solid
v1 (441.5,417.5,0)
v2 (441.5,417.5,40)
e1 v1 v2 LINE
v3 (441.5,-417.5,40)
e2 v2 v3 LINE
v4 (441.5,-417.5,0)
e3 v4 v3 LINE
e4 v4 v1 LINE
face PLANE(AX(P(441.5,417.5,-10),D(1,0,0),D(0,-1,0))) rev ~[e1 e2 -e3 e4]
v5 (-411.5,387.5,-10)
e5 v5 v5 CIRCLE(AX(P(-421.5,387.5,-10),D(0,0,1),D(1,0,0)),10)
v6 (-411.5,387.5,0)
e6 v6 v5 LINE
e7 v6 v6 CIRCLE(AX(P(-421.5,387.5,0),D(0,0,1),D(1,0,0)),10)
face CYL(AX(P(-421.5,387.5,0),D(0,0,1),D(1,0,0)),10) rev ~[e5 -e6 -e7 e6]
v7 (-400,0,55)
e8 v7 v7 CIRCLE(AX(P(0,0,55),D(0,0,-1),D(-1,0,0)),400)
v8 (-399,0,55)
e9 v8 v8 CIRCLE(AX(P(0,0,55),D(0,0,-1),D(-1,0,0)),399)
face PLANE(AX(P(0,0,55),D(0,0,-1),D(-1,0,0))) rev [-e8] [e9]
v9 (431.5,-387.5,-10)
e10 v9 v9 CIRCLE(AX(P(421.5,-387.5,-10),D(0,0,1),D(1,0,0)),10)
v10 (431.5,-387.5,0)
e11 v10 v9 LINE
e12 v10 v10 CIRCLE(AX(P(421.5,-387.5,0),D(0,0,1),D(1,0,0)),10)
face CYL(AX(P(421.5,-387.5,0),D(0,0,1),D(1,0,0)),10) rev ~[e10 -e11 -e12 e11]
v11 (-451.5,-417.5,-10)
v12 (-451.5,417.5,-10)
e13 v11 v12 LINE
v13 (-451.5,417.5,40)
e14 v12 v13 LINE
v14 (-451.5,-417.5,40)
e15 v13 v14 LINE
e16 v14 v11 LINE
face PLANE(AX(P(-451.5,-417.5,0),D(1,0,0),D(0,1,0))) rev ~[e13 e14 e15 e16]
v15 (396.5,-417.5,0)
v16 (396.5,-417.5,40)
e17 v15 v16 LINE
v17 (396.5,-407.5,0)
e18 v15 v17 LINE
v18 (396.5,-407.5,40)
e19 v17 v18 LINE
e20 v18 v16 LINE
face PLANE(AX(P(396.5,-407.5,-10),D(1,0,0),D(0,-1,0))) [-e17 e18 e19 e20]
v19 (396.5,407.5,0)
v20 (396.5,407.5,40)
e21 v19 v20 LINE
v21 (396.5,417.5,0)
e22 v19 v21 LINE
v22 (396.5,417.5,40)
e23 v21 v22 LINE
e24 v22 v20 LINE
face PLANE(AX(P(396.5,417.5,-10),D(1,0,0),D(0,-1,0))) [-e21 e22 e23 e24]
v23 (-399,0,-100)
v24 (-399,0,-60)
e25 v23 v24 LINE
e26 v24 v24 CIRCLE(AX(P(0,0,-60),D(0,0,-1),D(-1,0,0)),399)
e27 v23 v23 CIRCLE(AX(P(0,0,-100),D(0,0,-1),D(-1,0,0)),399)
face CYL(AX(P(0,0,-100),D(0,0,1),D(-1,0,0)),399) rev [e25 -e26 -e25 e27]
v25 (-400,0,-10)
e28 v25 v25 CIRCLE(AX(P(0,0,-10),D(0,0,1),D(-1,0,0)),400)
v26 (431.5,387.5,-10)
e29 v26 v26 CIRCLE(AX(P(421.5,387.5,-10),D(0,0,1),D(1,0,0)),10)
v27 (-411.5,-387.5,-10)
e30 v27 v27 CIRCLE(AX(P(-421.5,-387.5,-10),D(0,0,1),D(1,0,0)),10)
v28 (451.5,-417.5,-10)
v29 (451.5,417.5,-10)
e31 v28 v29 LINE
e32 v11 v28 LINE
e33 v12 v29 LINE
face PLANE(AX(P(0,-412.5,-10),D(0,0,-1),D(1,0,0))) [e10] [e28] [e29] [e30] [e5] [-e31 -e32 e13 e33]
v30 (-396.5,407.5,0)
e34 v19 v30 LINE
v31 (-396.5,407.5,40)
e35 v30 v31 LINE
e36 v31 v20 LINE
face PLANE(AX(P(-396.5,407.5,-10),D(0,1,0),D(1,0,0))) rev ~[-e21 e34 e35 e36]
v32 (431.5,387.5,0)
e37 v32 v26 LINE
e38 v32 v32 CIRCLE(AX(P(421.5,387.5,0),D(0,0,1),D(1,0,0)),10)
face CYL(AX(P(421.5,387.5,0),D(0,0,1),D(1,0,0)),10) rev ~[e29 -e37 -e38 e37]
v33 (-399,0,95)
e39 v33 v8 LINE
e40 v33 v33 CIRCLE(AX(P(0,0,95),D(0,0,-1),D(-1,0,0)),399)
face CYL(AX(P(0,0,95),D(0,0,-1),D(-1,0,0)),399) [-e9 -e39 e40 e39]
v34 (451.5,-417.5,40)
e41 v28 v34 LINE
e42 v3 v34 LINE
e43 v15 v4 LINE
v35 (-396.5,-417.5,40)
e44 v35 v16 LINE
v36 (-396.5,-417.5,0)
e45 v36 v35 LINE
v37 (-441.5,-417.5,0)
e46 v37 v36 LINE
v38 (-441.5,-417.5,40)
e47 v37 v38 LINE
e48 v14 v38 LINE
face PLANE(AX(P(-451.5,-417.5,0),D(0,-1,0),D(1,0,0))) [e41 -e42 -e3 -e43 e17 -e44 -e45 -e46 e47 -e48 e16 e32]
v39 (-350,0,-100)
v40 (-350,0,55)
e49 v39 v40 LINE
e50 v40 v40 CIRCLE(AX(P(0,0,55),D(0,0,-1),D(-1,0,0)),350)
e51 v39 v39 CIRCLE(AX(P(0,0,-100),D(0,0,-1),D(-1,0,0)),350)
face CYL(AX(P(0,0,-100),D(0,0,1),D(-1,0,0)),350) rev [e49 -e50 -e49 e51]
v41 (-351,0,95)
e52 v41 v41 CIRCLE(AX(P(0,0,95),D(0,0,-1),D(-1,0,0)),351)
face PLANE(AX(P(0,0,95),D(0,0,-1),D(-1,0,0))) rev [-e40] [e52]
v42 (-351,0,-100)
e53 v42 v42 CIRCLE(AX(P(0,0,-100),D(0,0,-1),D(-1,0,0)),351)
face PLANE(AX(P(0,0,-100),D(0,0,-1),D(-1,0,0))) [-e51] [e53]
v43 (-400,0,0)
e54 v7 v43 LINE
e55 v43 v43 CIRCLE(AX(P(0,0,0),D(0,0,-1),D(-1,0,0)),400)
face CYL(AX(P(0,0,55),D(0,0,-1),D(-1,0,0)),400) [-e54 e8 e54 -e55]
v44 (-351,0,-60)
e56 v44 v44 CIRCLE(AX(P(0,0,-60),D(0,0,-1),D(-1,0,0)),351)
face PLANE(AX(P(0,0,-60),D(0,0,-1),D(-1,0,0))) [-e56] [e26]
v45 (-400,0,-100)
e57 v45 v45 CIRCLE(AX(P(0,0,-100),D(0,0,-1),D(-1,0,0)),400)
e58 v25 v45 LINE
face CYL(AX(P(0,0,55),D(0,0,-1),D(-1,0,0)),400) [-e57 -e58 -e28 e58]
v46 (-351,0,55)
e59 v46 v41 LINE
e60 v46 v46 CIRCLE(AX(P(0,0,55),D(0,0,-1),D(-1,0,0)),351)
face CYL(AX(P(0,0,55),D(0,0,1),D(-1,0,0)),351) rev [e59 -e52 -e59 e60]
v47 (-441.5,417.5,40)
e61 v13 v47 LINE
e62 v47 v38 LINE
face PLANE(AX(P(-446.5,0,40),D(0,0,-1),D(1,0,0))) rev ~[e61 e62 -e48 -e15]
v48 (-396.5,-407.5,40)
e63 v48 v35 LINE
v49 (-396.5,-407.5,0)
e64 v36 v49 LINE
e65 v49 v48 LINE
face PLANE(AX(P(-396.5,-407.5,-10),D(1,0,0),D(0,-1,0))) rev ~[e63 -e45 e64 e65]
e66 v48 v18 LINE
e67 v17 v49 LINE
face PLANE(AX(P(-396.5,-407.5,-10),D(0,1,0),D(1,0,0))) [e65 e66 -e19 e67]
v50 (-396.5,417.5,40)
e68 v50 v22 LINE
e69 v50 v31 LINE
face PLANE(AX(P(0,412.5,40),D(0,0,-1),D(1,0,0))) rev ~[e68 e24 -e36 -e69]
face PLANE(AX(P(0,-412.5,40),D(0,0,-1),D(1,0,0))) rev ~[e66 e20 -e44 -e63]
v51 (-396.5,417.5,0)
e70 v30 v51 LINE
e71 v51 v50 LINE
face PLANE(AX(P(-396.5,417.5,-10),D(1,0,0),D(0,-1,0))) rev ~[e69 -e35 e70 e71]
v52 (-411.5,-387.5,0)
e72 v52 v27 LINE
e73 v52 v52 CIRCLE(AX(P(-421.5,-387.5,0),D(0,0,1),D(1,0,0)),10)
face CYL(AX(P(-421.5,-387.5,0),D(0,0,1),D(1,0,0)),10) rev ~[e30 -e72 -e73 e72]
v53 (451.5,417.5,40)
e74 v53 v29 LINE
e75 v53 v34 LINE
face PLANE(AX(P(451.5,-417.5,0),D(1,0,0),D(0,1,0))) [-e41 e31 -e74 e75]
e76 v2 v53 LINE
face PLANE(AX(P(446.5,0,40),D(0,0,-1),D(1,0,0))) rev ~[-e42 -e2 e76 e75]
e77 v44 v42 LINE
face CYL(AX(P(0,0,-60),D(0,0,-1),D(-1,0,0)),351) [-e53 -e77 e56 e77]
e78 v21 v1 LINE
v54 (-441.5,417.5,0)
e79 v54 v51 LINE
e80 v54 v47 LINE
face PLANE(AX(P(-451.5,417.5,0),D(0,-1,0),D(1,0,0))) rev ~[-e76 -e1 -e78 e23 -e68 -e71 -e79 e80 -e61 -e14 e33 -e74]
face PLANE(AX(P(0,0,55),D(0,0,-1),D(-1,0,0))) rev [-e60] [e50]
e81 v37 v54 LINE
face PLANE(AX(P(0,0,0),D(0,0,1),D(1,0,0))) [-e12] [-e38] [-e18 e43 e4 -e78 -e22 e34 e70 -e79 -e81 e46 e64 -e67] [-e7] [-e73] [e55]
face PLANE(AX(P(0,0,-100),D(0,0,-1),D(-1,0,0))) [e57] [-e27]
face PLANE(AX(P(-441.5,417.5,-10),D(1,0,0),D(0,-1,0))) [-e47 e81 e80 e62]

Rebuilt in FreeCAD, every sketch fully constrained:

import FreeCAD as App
import Part
import Sketcher

V = App.Vector


def add_polygon(sketch, points):
    """Adds a closed chain of lines whose ends are joined by coincident constraints."""
    first, n = sketch.GeometryCount, len(points)
    for a, b in zip(points, points[1:] + points[:1]):
        sketch.addGeometry(Part.LineSegment(App.Vector(*a, 0), App.Vector(*b, 0)), False)
    for i in range(n):
        sketch.addConstraint(Sketcher.Constraint("Coincident", first + i, 2, first + (i + 1) % n, 1))

doc = App.newDocument("Part")
body = doc.addObject("PartDesign::Body", "Body")

# Sketch on XZ plane
sketch1 = body.newObject("Sketcher::SketchObject", "Sketch")
sketch1.AttachmentSupport = (doc.getObject("XZ_Plane"), [""])
sketch1.MapMode = "FlatFace"
add_polygon(sketch1, [(-351, -100), (-350, -100), (-350, 55), (-351, 55), (-351, 95), (-399, 95), (-399, 55), (-400, 55), (-400, -100), (-399, -100), (-399, -60), (-351, -60)])  # lines 0-11
sketch1.addConstraint([
    Sketcher.Constraint("Horizontal", 0),
    Sketcher.Constraint("Vertical", 1),
    Sketcher.Constraint("Horizontal", 2),
    Sketcher.Constraint("Vertical", 3),
    Sketcher.Constraint("Horizontal", 4),
    Sketcher.Constraint("Vertical", 5),
    Sketcher.Constraint("Horizontal", 6),
    Sketcher.Constraint("Vertical", 7),
    Sketcher.Constraint("Horizontal", 8),
    Sketcher.Constraint("Vertical", 9),
    Sketcher.Constraint("Horizontal", 10),
    Sketcher.Constraint("Vertical", 11),
    Sketcher.Constraint("Horizontal", 2, 2, 5, 2),
    Sketcher.Constraint("Horizontal", 0, 2, 7, 2),
    Sketcher.Constraint("Vertical", 5, 2, 8, 2),
    Sketcher.Constraint("Vertical", 3, 2, 10, 2),
    Sketcher.Constraint("Equal", 2, 6),
    Sketcher.Constraint("Equal", 5, 9),
    Sketcher.Constraint("DistanceX", 0, 1, 0, 2, 1.0),
    Sketcher.Constraint("DistanceX", 4, 2, 4, 1, 48.0),
    Sketcher.Constraint("DistanceY", 1, 1, 1, 2, 155.0),
    Sketcher.Constraint("DistanceY", 3, 1, 3, 2, 40.0),
    Sketcher.Constraint("DistanceX", 0, 2, -1, 1, 350.0),
    Sketcher.Constraint("DistanceY", 0, 2, -1, 1, 100.0),
])
revolution = body.newObject("PartDesign::Revolution", "Revolution")
revolution.Profile = sketch1
revolution.ReferenceAxis = (sketch1, ["V_Axis"])
revolution.Angle = 360

# Sketch on XY plane
sketch2 = body.newObject("Sketcher::SketchObject", "Sketch001")
sketch2.AttachmentSupport = (doc.getObject("XY_Plane"), [""])
sketch2.MapMode = "FlatFace"
add_polygon(sketch2, [(-452, 418), (-452, -418), (452, -418), (452, 418)])  # lines 0-3
sketch2.addGeometry(Part.Circle(V(-422, -388, 0), V(0, 0, 1), 10), False)  # 4
sketch2.addGeometry(Part.Circle(V(422, -388, 0), V(0, 0, 1), 10), False)  # 5
sketch2.addGeometry(Part.Circle(V(-422, 388, 0), V(0, 0, 1), 10), False)  # 6
sketch2.addGeometry(Part.Circle(V(0, 0, 0), V(0, 0, 1), 400), False)  # 7
sketch2.addGeometry(Part.Circle(V(422, 388, 0), V(0, 0, 1), 10), False)  # 8
sketch2.addConstraint([
    Sketcher.Constraint("Vertical", 0),
    Sketcher.Constraint("Horizontal", 1),
    Sketcher.Constraint("Vertical", 2),
    Sketcher.Constraint("Horizontal", 3),
    Sketcher.Constraint("Coincident", 7, 3, -1, 1),
    Sketcher.Constraint("Equal", 4, 5),
    Sketcher.Constraint("Equal", 5, 6),
    Sketcher.Constraint("Equal", 6, 8),
    Sketcher.Constraint("Symmetric", 5, 3, 6, 3, -1, 1),
    Sketcher.Constraint("Symmetric", 4, 3, 8, 3, -1, 1),
    Sketcher.Constraint("Symmetric", 0, 2, 2, 2, -1, 1),
    Sketcher.Constraint("Symmetric", 4, 3, 5, 3, -2),
    Sketcher.Constraint("Diameter", 4, 20.0),
    Sketcher.Constraint("Diameter", 7, 800.0),
    Sketcher.Constraint("DistanceX", 1, 1, 1, 2, 903.0),
    Sketcher.Constraint("DistanceY", 0, 2, 0, 1, 835.0),
    Sketcher.Constraint("DistanceX", 4, 3, 5, 3, 843.0),
    Sketcher.Constraint("DistanceY", 4, 3, 6, 3, 775.0),
])
pad1 = body.newObject("PartDesign::Pad", "Pad")
pad1.Profile = sketch2
pad1.Length = 10
pad1.Reversed = True

# Sketch on XY plane
sketch3 = body.newObject("Sketcher::SketchObject", "Sketch002")
sketch3.AttachmentSupport = (doc.getObject("XY_Plane"), [""])
sketch3.MapMode = "FlatFace"
sketch3.AttachmentOffset = App.Placement(V(0, 0, -10), App.Rotation())
add_polygon(sketch3, [(-396, -418), (-396, -408), (396, -408), (396, -418)])  # lines 0-3
add_polygon(sketch3, [(-452, -418), (-452, 418), (-442, 418), (-442, -418)])  # lines 4-7
add_polygon(sketch3, [(-396, 408), (-396, 418), (396, 418), (396, 408)])  # lines 8-11
add_polygon(sketch3, [(442, -418), (442, 418), (452, 418), (452, -418)])  # lines 12-15
sketch3.addConstraint([
    Sketcher.Constraint("Vertical", 0),
    Sketcher.Constraint("Horizontal", 1),
    Sketcher.Constraint("Vertical", 2),
    Sketcher.Constraint("Horizontal", 3),
    Sketcher.Constraint("Vertical", 4),
    Sketcher.Constraint("Horizontal", 5),
    Sketcher.Constraint("Vertical", 6),
    Sketcher.Constraint("Horizontal", 7),
    Sketcher.Constraint("Vertical", 8),
    Sketcher.Constraint("Horizontal", 9),
    Sketcher.Constraint("Vertical", 10),
    Sketcher.Constraint("Horizontal", 11),
    Sketcher.Constraint("Vertical", 12),
    Sketcher.Constraint("Horizontal", 13),
    Sketcher.Constraint("Vertical", 14),
    Sketcher.Constraint("Horizontal", 15),
    Sketcher.Constraint("Symmetric", 2, 2, 8, 2, -1, 1),
    Sketcher.Constraint("Symmetric", 0, 2, 10, 2, -1, 1),
    Sketcher.Constraint("Symmetric", 6, 2, 12, 2, -1, 1),
    Sketcher.Constraint("Symmetric", 4, 2, 14, 2, -1, 1),
    Sketcher.Constraint("Horizontal", 3, 2, 6, 2),
    Sketcher.Constraint("Horizontal", 5, 2, 8, 2),
    Sketcher.Constraint("Vertical", 3, 2, 8, 2),
    Sketcher.Constraint("Equal", 15, 0),
    Sketcher.Constraint("DistanceX", 1, 1, 1, 2, 793.0),
    Sketcher.Constraint("DistanceX", 5, 1, 5, 2, 10.0),
    Sketcher.Constraint("DistanceY", 4, 1, 4, 2, 835.0),
    Sketcher.Constraint("DistanceX", 4, 2, 0, 2, 55.0),
])
pad2 = body.newObject("PartDesign::Pad", "Pad001")
pad2.Profile = sketch3
pad2.Length = 50

doc.recompute()
